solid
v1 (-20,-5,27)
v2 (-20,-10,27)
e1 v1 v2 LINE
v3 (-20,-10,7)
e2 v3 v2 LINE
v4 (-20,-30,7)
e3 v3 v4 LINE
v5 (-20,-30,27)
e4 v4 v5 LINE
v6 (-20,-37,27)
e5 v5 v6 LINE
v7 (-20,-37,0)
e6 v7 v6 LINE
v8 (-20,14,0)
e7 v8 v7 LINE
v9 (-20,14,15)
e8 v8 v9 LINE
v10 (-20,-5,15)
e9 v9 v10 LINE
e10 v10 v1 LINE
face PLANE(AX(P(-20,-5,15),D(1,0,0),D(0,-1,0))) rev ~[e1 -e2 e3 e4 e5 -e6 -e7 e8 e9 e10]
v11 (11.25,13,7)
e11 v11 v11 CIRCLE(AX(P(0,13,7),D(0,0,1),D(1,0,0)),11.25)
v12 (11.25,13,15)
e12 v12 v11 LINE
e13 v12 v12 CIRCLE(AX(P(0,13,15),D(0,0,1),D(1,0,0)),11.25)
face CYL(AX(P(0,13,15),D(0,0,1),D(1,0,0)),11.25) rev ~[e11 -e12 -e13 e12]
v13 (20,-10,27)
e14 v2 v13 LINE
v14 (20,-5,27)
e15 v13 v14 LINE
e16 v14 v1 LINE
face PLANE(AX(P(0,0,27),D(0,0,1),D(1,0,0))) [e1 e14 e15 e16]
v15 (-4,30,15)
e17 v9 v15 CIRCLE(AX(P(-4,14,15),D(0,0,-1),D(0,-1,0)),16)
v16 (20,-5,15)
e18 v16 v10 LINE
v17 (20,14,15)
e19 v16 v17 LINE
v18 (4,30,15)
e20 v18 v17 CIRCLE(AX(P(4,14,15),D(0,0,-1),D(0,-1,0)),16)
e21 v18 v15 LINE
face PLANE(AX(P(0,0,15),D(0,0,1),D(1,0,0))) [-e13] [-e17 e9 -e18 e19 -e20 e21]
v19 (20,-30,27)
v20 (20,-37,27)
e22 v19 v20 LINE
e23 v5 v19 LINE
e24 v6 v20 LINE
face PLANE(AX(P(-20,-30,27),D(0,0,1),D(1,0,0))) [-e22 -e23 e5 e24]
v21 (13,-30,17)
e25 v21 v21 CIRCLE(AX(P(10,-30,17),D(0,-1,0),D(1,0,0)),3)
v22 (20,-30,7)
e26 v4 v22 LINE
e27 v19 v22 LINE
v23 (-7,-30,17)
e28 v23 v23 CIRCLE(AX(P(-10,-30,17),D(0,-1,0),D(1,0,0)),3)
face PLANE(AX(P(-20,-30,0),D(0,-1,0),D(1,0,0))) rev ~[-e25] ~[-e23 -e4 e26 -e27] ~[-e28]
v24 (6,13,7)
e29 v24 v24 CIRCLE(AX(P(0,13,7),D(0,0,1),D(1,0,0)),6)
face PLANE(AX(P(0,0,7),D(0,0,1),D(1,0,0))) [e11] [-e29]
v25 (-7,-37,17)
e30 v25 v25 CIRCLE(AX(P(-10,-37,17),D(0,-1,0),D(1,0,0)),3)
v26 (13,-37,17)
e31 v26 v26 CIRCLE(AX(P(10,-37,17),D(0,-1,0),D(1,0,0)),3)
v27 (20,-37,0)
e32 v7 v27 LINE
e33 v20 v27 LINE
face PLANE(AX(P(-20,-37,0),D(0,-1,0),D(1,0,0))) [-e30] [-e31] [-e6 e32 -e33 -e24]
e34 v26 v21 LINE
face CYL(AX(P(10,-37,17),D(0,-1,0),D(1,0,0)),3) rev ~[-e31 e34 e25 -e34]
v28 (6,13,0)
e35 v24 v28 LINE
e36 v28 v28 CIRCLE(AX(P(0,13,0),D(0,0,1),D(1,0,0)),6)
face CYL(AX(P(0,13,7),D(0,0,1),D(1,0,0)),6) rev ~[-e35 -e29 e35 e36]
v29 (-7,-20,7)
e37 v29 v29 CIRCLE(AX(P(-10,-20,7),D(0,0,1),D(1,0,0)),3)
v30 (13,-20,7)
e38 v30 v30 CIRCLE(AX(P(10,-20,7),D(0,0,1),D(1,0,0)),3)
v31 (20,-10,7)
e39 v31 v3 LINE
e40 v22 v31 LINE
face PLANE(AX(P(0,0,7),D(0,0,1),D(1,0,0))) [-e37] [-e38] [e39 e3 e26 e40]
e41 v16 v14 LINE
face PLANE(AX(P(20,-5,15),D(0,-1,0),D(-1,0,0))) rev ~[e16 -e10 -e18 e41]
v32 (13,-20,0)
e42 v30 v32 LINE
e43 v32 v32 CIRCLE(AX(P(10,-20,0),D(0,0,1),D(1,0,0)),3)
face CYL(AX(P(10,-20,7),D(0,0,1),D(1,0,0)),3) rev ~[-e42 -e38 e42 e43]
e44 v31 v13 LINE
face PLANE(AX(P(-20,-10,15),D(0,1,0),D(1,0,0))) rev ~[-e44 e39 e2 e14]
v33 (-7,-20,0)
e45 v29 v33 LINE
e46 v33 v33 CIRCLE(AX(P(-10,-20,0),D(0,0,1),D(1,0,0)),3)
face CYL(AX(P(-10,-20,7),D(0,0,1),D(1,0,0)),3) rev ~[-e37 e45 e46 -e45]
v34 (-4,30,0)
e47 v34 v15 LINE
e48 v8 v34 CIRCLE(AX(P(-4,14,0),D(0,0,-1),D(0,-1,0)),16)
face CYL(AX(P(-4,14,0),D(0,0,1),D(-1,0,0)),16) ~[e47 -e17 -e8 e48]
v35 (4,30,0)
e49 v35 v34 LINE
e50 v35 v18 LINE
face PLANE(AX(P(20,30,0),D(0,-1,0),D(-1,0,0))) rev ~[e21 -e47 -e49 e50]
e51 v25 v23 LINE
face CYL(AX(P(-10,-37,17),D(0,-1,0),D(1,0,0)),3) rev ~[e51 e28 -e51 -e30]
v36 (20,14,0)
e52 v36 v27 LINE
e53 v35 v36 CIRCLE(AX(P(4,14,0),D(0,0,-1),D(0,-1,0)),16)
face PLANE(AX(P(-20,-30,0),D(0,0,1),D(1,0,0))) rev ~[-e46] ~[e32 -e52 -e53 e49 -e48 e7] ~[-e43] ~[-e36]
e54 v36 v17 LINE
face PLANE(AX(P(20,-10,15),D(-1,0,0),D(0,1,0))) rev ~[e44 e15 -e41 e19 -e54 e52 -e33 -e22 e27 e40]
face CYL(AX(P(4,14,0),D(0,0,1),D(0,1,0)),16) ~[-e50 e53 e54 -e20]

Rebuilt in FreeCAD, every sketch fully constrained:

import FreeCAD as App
import Part
import Sketcher


def edges_at(feature, points):
    """Names of the edges that pass closest to the given points."""
    edges = feature.Shape.Edges
    near = lambda p: min(range(len(edges)), key=lambda i: edges[i].distToShape(Part.Vertex(*p))[0])
    return sorted({f"Edge{near(p) + 1}" for p in points})

doc = App.newDocument("Part")
body = doc.addObject("PartDesign::Body", "Body")

sketch1 = body.newObject("Sketcher::SketchObject", "Sketch")
sketch1.AttachmentSupport = (doc.getObject("XY_Plane"), [""])
sketch1.MapMode = "FlatFace"
sketch1.addGeometry(Part.LineSegment(App.Vector(-20, 30, 0), App.Vector(-20, -30, 0)), False)
sketch1.addGeometry(Part.LineSegment(App.Vector(-20, -30, 0), App.Vector(20, -30, 0)), False)
sketch1.addGeometry(Part.LineSegment(App.Vector(20, -30, 0), App.Vector(20, 30, 0)), False)
sketch1.addGeometry(Part.LineSegment(App.Vector(20, 30, 0), App.Vector(-20, 30, 0)), False)
sketch1.addConstraint(Sketcher.Constraint("Coincident", 0, 2, 1, 1))
sketch1.addConstraint(Sketcher.Constraint("Coincident", 1, 2, 2, 1))
sketch1.addConstraint(Sketcher.Constraint("Coincident", 2, 2, 3, 1))
sketch1.addConstraint(Sketcher.Constraint("Coincident", 3, 2, 0, 1))
sketch1.addConstraint(Sketcher.Constraint("Vertical", 0))
sketch1.addConstraint(Sketcher.Constraint("Horizontal", 1))
sketch1.addConstraint(Sketcher.Constraint("Vertical", 2))
sketch1.addConstraint(Sketcher.Constraint("Horizontal", 3))
sketch1.addConstraint(Sketcher.Constraint("Symmetric", 0, 2, 2, 2, -1, 1))
sketch1.addConstraint(Sketcher.Constraint("DistanceX", 1, 1, 1, 2, 40.0))
sketch1.addConstraint(Sketcher.Constraint("DistanceY", 0, 2, 0, 1, 60.0))
pad1 = body.newObject("PartDesign::Pad", "Pad")
pad1.Profile = sketch1
pad1.Length = 15

sketch2 = body.newObject("Sketcher::SketchObject", "Sketch001")
sketch2.AttachmentSupport = (doc.getObject("XY_Plane"), [""])
sketch2.MapMode = "FlatFace"
sketch2.AttachmentOffset = App.Placement(App.Vector(0, 0, 15), App.Rotation())
sketch2.addGeometry(Part.Circle(App.Vector(0, 13, 0), App.Vector(0, 0, 1), 11.25), False)
sketch2.addConstraint(Sketcher.Constraint("PointOnObject", 0, 3, -2))
sketch2.addConstraint(Sketcher.Constraint("Diameter", 0, 22.5))
sketch2.addConstraint(Sketcher.Constraint("DistanceY", -1, 1, 0, 3, 13.0))
pocket1 = body.newObject("PartDesign::Pocket", "Pocket")
pocket1.Profile = sketch2
pocket1.Length = 8

sketch3 = body.newObject("Sketcher::SketchObject", "Sketch002")
sketch3.AttachmentSupport = (doc.getObject("XY_Plane"), [""])
sketch3.MapMode = "FlatFace"
sketch3.AttachmentOffset = App.Placement(App.Vector(0, 0, 7), App.Rotation())
sketch3.addGeometry(Part.Circle(App.Vector(0, 13, 0), App.Vector(0, 0, 1), 6), False)
sketch3.addConstraint(Sketcher.Constraint("PointOnObject", 0, 3, -2))
sketch3.addConstraint(Sketcher.Constraint("Diameter", 0, 12.0))
sketch3.addConstraint(Sketcher.Constraint("DistanceY", -1, 1, 0, 3, 13.0))
pocket2 = body.newObject("PartDesign::Pocket", "Pocket001")
pocket2.Profile = sketch3
pocket2.Type = "ThroughAll"
doc.recompute()

fillet = body.newObject("PartDesign::Fillet", "Fillet")
fillet.Base = (pocket2, edges_at(pocket2, [(20, 30, 7.5), (-20, 30, 7.5)]))
fillet.Radius = 16

sketch4 = body.newObject("Sketcher::SketchObject", "Sketch003")
sketch4.AttachmentSupport = (doc.getObject("XY_Plane"), [""])
sketch4.MapMode = "FlatFace"
sketch4.AttachmentOffset = App.Placement(App.Vector(0, 0, 15), App.Rotation())
sketch4.addGeometry(Part.LineSegment(App.Vector(20, -10, 0), App.Vector(-20, -10, 0)), False)
sketch4.addGeometry(Part.LineSegment(App.Vector(-20, -10, 0), App.Vector(-20, -30, 0)), False)
sketch4.addGeometry(Part.LineSegment(App.Vector(-20, -30, 0), App.Vector(20, -30, 0)), False)
sketch4.addGeometry(Part.LineSegment(App.Vector(20, -30, 0), App.Vector(20, -10, 0)), False)
sketch4.addConstraint(Sketcher.Constraint("Coincident", 0, 2, 1, 1))
sketch4.addConstraint(Sketcher.Constraint("Coincident", 1, 2, 2, 1))
sketch4.addConstraint(Sketcher.Constraint("Coincident", 2, 2, 3, 1))
sketch4.addConstraint(Sketcher.Constraint("Coincident", 3, 2, 0, 1))
sketch4.addConstraint(Sketcher.Constraint("Horizontal", 0))
sketch4.addConstraint(Sketcher.Constraint("Vertical", 1))
sketch4.addConstraint(Sketcher.Constraint("Horizontal", 2))
sketch4.addConstraint(Sketcher.Constraint("Vertical", 3))
sketch4.addConstraint(Sketcher.Constraint("DistanceY", 1, 2, 1, 1, 20.0))
sketch4.addConstraint(Sketcher.Constraint("DistanceX", 0, 2, -1, 1, 20.0))
sketch4.addConstraint(Sketcher.Constraint("DistanceX", -1, 1, 2, 2, 20.0))
sketch4.addConstraint(Sketcher.Constraint("DistanceY", 0, 2, -1, 1, 10.0))
pocket3 = body.newObject("PartDesign::Pocket", "Pocket002")
pocket3.Profile = sketch4
pocket3.Length = 8

sketch5 = body.newObject("Sketcher::SketchObject", "Sketch004")
sketch5.AttachmentSupport = (doc.getObject("XZ_Plane"), [""])
sketch5.MapMode = "FlatFace"
sketch5.AttachmentOffset = App.Placement(App.Vector(0, 0, 30), App.Rotation())
sketch5.addGeometry(Part.LineSegment(App.Vector(-20, 27, 0), App.Vector(-20, 0, 0)), False)
sketch5.addGeometry(Part.LineSegment(App.Vector(-20, 0, 0), App.Vector(20, 0, 0)), False)
sketch5.addGeometry(Part.LineSegment(App.Vector(20, 0, 0), App.Vector(20, 27, 0)), False)
sketch5.addGeometry(Part.LineSegment(App.Vector(20, 27, 0), App.Vector(-20, 27, 0)), False)
sketch5.addConstraint(Sketcher.Constraint("Coincident", 0, 2, 1, 1))
sketch5.addConstraint(Sketcher.Constraint("Coincident", 1, 2, 2, 1))
sketch5.addConstraint(Sketcher.Constraint("Coincident", 2, 2, 3, 1))
sketch5.addConstraint(Sketcher.Constraint("Coincident", 3, 2, 0, 1))
sketch5.addConstraint(Sketcher.Constraint("Vertical", 0))
sketch5.addConstraint(Sketcher.Constraint("Horizontal", 1))
sketch5.addConstraint(Sketcher.Constraint("Vertical", 2))
sketch5.addConstraint(Sketcher.Constraint("Horizontal", 3))
sketch5.addConstraint(Sketcher.Constraint("Symmetric", 0, 2, 1, 2, -1, 1))
sketch5.addConstraint(Sketcher.Constraint("DistanceY", 0, 2, 0, 1, 27.0))
sketch5.addConstraint(Sketcher.Constraint("DistanceX", 1, 1, 1, 2, 40.0))
pad2 = body.newObject("PartDesign::Pad", "Pad001")
pad2.Profile = sketch5
pad2.Length = 7

sketch6 = body.newObject("Sketcher::SketchObject", "Sketch005")
sketch6.AttachmentSupport = (doc.getObject("XY_Plane"), [""])
sketch6.MapMode = "FlatFace"
sketch6.AttachmentOffset = App.Placement(App.Vector(0, 0, 7), App.Rotation())
sketch6.addGeometry(Part.Circle(App.Vector(-10, -20, 0), App.Vector(0, 0, 1), 3), False)
sketch6.addGeometry(Part.Circle(App.Vector(10, -20, 0), App.Vector(0, 0, 1), 3), False)
sketch6.addConstraint(Sketcher.Constraint("Equal", 0, 1))
sketch6.addConstraint(Sketcher.Constraint("Symmetric", 0, 3, 1, 3, -2))
sketch6.addConstraint(Sketcher.Constraint("Diameter", 0, 6.0))
sketch6.addConstraint(Sketcher.Constraint("DistanceX", 0, 3, -1, 1, 10.0))
sketch6.addConstraint(Sketcher.Constraint("DistanceY", 0, 3, -1, 1, 20.0))
pocket4 = body.newObject("PartDesign::Pocket", "Pocket003")
pocket4.Profile = sketch6
pocket4.Length = 7

sketch7 = body.newObject("Sketcher::SketchObject", "Sketch006")
sketch7.AttachmentSupport = (doc.getObject("XZ_Plane"), [""])
sketch7.MapMode = "FlatFace"
sketch7.AttachmentOffset = App.Placement(App.Vector(0, 0, 37), App.Rotation())
sketch7.addGeometry(Part.Circle(App.Vector(10, 17, 0), App.Vector(0, 0, 1), 3), False)
sketch7.addGeometry(Part.Circle(App.Vector(-10, 17, 0), App.Vector(0, 0, 1), 3), False)
sketch7.addConstraint(Sketcher.Constraint("Equal", 0, 1))
sketch7.addConstraint(Sketcher.Constraint("Symmetric", 0, 3, 1, 3, -2))
sketch7.addConstraint(Sketcher.Constraint("Diameter", 0, 6.0))
sketch7.addConstraint(Sketcher.Constraint("DistanceX", -1, 1, 0, 3, 10.0))
sketch7.addConstraint(Sketcher.Constraint("DistanceY", -1, 1, 0, 3, 17.0))
pocket5 = body.newObject("PartDesign::Pocket", "Pocket004")
pocket5.Profile = sketch7
pocket5.Length = 7

sketch8 = body.newObject("Sketcher::SketchObject", "Sketch007")
sketch8.AttachmentSupport = (doc.getObject("XY_Plane"), [""])
sketch8.MapMode = "FlatFace"
sketch8.AttachmentOffset = App.Placement(App.Vector(0, 0, 15), App.Rotation())
sketch8.addGeometry(Part.LineSegment(App.Vector(-20, -5, 0), App.Vector(-20, -10, 0)), False)
sketch8.addGeometry(Part.LineSegment(App.Vector(-20, -10, 0), App.Vector(20, -10, 0)), False)
sketch8.addGeometry(Part.LineSegment(App.Vector(20, -10, 0), App.Vector(20, -5, 0)), False)
sketch8.addGeometry(Part.LineSegment(App.Vector(20, -5, 0), App.Vector(-20, -5, 0)), False)
sketch8.addConstraint(Sketcher.Constraint("Coincident", 0, 2, 1, 1))
sketch8.addConstraint(Sketcher.Constraint("Coincident", 1, 2, 2, 1))
sketch8.addConstraint(Sketcher.Constraint("Coincident", 2, 2, 3, 1))
sketch8.addConstraint(Sketcher.Constraint("Coincident", 3, 2, 0, 1))
sketch8.addConstraint(Sketcher.Constraint("Vertical", 0))
sketch8.addConstraint(Sketcher.Constraint("Horizontal", 1))
sketch8.addConstraint(Sketcher.Constraint("Vertical", 2))
sketch8.addConstraint(Sketcher.Constraint("Horizontal", 3))
sketch8.addConstraint(Sketcher.Constraint("DistanceY", 0, 2, 0, 1, 5.0))
sketch8.addConstraint(Sketcher.Constraint("DistanceY", 2, 2, -1, 1, 5.0))
sketch8.addConstraint(Sketcher.Constraint("DistanceX", 1, 1, 1, 2, 40.0))
sketch8.addConstraint(Sketcher.Constraint("DistanceX", 0, 2, -1, 1, 20.0))
pad3 = body.newObject("PartDesign::Pad", "Pad002")
pad3.Profile = sketch8
pad3.Length = 12

doc.recompute()
